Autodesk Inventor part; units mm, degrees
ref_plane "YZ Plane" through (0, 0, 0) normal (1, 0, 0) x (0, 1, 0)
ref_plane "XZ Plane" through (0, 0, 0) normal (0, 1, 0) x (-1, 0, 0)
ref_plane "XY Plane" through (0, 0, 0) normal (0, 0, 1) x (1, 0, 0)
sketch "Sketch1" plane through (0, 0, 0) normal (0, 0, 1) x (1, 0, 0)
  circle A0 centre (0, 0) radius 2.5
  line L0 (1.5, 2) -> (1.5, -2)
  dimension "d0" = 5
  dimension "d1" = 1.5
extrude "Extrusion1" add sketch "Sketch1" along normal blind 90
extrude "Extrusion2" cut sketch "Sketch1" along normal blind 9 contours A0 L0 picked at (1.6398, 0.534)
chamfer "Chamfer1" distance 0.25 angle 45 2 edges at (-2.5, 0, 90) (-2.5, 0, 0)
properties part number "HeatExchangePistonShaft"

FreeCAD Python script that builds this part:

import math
import FreeCAD as App
import Part
import Sketcher
from FreeCAD import Vector
Q = App.Units.Quantity


def edges_at(feature, points):
    """Names of the edges that pass closest to the given points."""
    edges = feature.Shape.Edges
    near = lambda p: min(range(len(edges)), key=lambda i: edges[i].distToShape(Part.Vertex(*p))[0])
    return sorted({f"Edge{near(p) + 1}" for p in points})

doc = App.newDocument("Part")
params = doc.addObject("Spreadsheet::Sheet", "Params")
for row, (alias, value) in enumerate([
    ("sketch1_diameter", "5 mm"),
    ("pad1_length", "90 mm"),
    ("sketch2_radius", "2.5 mm"),
    ("pocket1_length", "9 mm"),
    ("chamfer_size", "0.25 mm"),
], start=1):
    params.set(f"A{row}", alias)
    params.set(f"B{row}", "=" + value)
    params.setAlias(f"B{row}", alias)

body = doc.addObject("PartDesign::Body", "Body")

sketch1 = body.newObject("Sketcher::SketchObject", "Sketch")
sketch1.AttachmentSupport = (doc.getObject("XY_Plane"), [""])
sketch1.MapMode = "FlatFace"
sketch1.addGeometry(Part.Circle(Vector(0, 0, 0), Vector(0, 0, 1), 2.5), False)
sketch1.addConstraint(Sketcher.Constraint("Coincident", 0, 3, -1, 1))
sketch1.addConstraint(Sketcher.Constraint("Diameter", 0, Q("5 mm")))
sketch1.setExpression("Constraints[1]", "Params.sketch1_diameter")
pad1 = body.newObject("PartDesign::Pad", "Pad")
pad1.Profile = sketch1
pad1.setExpression("Length", "Params.pad1_length")

sketch2 = body.newObject("Sketcher::SketchObject", "Sketch001")
sketch2.AttachmentSupport = (doc.getObject("XY_Plane"), [""])
sketch2.MapMode = "FlatFace"
sketch2.addGeometry(Part.ArcOfCircle(Part.Circle(Vector(0, 0, 0), Vector(0, 0, 1), 2.5), math.radians(-53), math.radians(53)), False)
sketch2.addGeometry(Part.LineSegment(Vector(1.5, 2, 0), Vector(1.5, -2, 0)), False)
sketch2.addConstraint(Sketcher.Constraint("Coincident", 0, 1, 1, 2))
sketch2.addConstraint(Sketcher.Constraint("Coincident", 1, 1, 0, 2))
sketch2.addConstraint(Sketcher.Constraint("Vertical", 1))
sketch2.addConstraint(Sketcher.Constraint("Coincident", 0, 3, -1, 1))
sketch2.addConstraint(Sketcher.Constraint("Radius", 0, Q("2.5 mm")))
sketch2.addConstraint(Sketcher.Constraint("DistanceX", -1, 1, 0, 1, Q("1.5 mm")))
sketch2.setExpression("Constraints[4]", "Params.sketch2_radius")
pocket1 = body.newObject("PartDesign::Pocket", "Pocket")
pocket1.Profile = sketch2
pocket1.setExpression("Length", "Params.pocket1_length")
pocket1.Reversed = True
doc.recompute()

chamfer = body.newObject("PartDesign::Chamfer", "Chamfer")
chamfer.Base = (pocket1, edges_at(pocket1, [(-2.5, 0, 90), (-2.5, 0, 0)]))
chamfer.setExpression("Size", "Params.chamfer_size")

doc.recompute()
